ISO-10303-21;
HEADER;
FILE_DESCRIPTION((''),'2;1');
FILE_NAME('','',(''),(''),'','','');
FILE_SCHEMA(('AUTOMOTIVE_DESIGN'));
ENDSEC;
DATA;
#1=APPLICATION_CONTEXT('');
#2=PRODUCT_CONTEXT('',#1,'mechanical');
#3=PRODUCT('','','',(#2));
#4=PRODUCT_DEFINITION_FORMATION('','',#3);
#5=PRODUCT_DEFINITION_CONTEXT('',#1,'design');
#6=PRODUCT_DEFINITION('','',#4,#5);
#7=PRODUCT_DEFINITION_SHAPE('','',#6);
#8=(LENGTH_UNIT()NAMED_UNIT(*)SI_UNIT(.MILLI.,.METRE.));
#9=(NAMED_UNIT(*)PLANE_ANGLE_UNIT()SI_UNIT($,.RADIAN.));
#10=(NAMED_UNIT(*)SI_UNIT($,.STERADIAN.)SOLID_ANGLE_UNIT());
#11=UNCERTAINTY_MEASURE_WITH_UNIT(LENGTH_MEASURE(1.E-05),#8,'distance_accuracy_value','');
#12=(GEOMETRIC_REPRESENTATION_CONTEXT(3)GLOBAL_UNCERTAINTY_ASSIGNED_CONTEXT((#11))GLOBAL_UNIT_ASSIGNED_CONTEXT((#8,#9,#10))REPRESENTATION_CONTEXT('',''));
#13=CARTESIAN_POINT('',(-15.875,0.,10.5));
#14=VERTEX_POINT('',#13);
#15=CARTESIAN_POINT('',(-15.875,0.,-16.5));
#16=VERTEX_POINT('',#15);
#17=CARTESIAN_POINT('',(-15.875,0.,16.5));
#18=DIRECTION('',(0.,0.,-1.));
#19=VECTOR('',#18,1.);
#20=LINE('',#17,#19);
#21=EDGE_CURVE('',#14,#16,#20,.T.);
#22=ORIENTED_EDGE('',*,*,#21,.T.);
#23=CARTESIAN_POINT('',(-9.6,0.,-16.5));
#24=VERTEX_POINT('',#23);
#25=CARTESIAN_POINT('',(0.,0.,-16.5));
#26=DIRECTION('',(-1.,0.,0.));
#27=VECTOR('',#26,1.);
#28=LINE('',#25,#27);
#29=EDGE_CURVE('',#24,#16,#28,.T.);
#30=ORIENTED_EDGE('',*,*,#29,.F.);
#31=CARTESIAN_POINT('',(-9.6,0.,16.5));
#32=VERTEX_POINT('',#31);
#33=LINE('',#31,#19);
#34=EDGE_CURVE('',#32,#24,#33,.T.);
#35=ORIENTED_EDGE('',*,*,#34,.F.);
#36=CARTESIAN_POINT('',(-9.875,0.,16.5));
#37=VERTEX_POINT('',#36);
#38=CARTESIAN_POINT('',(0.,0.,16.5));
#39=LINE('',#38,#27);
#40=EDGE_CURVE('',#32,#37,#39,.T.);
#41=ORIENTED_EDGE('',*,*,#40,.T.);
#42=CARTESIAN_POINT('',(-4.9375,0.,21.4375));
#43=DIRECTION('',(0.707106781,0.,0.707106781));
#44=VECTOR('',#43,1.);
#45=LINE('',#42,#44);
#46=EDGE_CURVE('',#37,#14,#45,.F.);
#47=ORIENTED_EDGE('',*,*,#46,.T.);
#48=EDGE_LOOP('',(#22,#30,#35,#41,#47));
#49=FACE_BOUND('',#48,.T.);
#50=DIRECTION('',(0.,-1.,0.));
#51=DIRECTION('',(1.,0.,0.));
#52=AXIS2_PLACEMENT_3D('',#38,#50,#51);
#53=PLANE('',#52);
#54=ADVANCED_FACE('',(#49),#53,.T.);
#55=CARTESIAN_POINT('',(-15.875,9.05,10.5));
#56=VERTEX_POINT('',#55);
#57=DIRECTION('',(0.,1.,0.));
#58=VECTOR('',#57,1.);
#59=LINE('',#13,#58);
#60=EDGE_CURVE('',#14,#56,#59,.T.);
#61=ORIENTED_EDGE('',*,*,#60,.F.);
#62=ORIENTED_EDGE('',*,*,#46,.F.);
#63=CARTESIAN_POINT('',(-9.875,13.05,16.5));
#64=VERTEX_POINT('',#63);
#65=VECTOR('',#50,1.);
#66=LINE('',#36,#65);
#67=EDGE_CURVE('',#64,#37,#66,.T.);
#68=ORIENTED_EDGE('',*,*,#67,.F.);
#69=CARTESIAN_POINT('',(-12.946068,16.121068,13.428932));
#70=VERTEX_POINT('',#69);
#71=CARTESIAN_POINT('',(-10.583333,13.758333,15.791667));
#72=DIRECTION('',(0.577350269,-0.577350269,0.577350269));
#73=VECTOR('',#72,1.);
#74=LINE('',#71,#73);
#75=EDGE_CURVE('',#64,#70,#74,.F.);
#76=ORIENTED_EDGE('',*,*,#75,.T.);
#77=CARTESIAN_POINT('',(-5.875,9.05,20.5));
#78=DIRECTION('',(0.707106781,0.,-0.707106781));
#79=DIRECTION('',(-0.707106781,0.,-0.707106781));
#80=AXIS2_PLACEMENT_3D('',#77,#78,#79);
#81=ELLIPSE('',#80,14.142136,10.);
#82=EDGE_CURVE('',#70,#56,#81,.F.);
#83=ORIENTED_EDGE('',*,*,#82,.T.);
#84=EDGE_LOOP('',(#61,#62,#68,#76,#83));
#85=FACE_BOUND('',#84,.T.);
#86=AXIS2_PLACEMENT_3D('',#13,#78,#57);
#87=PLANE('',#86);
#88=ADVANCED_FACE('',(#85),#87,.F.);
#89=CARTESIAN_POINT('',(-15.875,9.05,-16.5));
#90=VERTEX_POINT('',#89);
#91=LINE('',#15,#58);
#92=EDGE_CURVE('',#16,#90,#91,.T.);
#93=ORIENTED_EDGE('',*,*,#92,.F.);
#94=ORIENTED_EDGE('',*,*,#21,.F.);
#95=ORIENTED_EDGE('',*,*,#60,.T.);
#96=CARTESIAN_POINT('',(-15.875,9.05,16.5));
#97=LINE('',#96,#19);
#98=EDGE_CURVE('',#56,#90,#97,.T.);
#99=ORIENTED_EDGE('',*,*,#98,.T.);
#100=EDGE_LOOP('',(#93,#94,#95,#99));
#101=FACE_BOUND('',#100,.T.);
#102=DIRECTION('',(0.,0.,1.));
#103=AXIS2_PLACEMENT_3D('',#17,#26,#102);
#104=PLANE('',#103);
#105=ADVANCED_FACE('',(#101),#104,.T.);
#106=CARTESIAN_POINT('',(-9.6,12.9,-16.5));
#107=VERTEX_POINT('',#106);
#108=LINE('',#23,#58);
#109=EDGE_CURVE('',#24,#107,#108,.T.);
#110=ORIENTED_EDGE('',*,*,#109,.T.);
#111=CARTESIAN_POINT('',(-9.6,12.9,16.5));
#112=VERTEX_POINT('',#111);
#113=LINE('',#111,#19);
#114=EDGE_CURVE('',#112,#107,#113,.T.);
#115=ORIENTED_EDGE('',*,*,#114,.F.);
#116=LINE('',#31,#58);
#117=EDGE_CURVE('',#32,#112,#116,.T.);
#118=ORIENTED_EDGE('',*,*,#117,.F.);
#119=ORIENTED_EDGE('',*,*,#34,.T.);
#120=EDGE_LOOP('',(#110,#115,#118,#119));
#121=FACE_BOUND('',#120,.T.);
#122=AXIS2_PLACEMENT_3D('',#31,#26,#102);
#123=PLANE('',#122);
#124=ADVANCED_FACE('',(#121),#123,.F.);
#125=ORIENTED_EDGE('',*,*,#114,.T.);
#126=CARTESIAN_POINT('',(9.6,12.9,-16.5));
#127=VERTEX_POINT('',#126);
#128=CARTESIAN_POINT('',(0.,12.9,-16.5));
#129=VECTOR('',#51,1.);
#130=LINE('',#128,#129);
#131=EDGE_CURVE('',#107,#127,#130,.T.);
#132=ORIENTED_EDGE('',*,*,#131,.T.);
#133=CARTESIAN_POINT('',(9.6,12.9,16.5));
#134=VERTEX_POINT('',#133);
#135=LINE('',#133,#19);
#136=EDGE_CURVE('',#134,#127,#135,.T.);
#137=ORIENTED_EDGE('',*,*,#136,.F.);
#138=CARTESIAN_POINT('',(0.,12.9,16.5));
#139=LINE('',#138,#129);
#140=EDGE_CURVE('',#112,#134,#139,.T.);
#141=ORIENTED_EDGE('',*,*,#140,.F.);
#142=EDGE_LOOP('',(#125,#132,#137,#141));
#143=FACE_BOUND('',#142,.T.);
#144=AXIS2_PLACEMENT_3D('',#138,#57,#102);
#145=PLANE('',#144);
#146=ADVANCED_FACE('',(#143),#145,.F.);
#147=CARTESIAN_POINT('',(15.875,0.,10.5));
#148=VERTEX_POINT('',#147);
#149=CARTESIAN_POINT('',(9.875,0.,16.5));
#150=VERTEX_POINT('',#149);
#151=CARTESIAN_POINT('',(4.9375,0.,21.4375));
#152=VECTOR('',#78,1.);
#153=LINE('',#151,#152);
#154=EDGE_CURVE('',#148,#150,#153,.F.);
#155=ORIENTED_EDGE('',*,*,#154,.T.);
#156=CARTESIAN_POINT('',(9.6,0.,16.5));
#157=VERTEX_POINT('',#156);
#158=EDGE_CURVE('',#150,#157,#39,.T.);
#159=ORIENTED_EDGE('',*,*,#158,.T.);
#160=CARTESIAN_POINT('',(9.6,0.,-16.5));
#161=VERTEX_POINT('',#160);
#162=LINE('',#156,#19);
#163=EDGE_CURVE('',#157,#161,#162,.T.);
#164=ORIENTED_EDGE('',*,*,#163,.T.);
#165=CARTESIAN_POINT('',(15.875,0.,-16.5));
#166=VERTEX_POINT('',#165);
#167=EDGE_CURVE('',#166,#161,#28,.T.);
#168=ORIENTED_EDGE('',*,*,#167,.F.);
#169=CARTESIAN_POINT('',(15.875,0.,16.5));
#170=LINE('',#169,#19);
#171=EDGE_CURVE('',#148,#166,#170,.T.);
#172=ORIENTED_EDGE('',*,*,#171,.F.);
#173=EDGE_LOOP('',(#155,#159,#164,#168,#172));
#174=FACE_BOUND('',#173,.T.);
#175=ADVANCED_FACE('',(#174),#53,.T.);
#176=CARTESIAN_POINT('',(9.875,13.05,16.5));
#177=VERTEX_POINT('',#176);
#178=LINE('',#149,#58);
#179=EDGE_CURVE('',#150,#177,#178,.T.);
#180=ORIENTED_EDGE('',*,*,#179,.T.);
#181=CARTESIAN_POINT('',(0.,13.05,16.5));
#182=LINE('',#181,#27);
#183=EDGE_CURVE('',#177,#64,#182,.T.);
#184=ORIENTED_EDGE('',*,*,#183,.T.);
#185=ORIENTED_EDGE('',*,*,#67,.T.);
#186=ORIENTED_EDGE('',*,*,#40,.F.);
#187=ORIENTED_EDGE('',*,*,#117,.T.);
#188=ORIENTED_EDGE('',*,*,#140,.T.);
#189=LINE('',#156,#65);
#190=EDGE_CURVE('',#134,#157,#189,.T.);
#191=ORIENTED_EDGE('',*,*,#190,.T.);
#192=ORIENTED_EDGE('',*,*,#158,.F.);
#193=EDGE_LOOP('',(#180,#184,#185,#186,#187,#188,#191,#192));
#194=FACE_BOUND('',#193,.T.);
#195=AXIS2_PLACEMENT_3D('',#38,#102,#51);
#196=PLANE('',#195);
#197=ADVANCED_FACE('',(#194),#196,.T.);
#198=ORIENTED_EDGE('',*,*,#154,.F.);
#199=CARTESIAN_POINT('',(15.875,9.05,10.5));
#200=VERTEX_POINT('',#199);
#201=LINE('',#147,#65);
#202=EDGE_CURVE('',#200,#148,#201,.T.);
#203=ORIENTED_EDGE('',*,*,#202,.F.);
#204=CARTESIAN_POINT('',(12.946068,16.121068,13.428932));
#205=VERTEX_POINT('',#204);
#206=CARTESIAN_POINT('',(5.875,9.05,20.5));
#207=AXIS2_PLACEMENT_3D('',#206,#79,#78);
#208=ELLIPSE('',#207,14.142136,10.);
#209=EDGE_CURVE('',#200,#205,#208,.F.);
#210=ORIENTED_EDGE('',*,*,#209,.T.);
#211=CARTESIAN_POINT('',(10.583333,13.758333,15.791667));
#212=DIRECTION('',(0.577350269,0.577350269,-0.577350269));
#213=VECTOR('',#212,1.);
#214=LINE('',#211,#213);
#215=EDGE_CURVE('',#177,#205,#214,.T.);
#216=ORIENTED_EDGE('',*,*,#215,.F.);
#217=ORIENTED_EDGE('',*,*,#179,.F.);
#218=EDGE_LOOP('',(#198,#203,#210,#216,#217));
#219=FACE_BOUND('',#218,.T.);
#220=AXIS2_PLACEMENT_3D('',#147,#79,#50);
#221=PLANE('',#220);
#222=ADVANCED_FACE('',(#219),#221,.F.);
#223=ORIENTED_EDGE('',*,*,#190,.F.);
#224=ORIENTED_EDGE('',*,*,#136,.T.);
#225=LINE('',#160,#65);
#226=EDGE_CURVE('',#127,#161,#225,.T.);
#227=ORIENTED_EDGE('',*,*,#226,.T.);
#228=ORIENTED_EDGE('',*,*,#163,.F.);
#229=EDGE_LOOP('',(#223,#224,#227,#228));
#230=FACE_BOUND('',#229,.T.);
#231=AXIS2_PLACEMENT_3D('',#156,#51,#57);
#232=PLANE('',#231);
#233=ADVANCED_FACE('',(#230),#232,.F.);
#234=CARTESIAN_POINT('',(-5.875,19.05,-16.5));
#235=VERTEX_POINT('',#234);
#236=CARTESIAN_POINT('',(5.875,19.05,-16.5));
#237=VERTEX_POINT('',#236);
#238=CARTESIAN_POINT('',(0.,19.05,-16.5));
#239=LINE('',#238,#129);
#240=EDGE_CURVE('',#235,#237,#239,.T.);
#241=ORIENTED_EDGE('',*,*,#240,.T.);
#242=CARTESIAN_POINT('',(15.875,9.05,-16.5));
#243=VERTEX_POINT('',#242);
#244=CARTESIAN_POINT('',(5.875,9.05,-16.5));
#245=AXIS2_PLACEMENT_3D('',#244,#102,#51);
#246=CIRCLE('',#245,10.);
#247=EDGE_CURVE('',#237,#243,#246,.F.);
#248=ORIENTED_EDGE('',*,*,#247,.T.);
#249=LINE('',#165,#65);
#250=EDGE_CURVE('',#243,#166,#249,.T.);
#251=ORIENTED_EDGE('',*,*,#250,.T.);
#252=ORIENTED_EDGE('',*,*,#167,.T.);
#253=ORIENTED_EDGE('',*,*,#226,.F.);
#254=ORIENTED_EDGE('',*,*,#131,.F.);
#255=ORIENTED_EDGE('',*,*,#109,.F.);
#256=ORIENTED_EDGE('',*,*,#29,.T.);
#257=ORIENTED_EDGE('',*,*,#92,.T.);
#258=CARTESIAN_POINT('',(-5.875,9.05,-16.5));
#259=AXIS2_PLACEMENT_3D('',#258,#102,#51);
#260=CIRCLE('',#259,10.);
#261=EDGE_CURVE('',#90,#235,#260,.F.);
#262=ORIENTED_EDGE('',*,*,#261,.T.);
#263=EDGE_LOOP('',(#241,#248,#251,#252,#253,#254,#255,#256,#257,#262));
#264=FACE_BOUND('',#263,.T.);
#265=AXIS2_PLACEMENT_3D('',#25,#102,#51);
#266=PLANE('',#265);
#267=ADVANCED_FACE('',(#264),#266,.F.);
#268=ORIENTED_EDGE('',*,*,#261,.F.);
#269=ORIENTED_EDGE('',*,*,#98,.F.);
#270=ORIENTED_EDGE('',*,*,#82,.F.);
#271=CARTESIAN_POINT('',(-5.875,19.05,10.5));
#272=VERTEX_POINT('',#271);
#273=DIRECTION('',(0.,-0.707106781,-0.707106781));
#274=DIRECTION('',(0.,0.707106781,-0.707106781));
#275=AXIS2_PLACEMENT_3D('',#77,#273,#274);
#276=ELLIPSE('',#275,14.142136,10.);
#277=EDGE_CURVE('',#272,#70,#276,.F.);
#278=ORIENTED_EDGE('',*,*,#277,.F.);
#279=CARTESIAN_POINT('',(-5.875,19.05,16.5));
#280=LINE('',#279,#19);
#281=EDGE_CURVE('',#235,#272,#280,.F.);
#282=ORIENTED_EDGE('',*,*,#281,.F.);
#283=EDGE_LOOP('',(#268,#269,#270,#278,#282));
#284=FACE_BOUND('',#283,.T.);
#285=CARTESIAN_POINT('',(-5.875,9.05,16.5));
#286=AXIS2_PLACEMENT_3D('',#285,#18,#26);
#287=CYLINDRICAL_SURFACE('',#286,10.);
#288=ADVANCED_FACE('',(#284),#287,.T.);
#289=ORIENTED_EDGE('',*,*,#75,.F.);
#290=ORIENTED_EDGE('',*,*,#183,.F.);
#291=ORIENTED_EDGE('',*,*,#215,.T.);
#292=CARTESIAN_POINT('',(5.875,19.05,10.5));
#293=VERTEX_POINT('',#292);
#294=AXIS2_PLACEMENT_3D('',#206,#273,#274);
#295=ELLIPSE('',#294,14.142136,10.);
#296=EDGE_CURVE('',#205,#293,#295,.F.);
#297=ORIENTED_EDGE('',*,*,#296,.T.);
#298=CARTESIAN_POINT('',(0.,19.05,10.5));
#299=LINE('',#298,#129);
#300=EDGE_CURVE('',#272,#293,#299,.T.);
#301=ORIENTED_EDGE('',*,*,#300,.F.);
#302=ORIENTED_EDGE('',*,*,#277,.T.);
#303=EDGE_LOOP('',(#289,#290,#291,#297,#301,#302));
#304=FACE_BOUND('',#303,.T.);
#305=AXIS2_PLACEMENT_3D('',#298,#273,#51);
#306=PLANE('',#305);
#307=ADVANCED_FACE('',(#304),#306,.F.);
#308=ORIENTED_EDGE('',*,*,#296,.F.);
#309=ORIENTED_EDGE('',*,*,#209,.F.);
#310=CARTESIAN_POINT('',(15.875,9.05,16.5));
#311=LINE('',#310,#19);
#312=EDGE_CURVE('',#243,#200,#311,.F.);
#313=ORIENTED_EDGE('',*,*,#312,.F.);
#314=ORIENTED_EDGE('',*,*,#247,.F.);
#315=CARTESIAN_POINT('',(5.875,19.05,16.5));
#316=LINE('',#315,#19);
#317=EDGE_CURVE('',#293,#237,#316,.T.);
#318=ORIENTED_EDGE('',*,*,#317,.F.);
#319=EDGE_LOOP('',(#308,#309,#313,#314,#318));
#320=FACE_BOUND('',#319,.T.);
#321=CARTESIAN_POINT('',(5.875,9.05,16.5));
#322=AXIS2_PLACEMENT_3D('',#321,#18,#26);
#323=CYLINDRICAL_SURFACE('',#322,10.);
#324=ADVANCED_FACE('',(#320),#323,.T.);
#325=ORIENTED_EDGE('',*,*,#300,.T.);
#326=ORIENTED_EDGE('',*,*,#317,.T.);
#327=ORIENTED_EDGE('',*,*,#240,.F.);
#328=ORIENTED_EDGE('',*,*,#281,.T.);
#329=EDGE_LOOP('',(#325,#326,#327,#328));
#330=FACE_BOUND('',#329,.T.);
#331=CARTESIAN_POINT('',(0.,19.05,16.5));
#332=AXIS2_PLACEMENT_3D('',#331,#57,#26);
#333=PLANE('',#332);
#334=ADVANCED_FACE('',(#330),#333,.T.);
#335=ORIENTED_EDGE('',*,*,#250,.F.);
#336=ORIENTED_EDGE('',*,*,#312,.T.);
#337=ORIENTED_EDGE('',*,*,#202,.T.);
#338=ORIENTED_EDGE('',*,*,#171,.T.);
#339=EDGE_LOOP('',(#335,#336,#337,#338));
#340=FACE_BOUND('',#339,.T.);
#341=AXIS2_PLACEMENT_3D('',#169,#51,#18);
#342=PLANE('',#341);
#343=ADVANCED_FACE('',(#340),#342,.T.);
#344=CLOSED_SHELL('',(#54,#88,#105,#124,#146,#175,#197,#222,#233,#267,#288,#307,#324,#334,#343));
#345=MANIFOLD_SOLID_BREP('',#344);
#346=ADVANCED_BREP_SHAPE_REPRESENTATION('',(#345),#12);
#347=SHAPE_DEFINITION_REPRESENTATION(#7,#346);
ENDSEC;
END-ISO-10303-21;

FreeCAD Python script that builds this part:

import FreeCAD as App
import Part
import Sketcher
from FreeCAD import Vector


def edges_at(feature, points):
    """Names of the edges that pass closest to the given points."""
    edges = feature.Shape.Edges
    near = lambda p: min(range(len(edges)), key=lambda i: edges[i].distToShape(Part.Vertex(*p))[0])
    return sorted({f"Edge{near(p) + 1}" for p in points})


def add_polygon(sketch, points):
    """Adds a closed chain of lines whose ends are joined by coincident constraints."""
    first, n = sketch.GeometryCount, len(points)
    for a, b in zip(points, points[1:] + points[:1]):
        sketch.addGeometry(Part.LineSegment(App.Vector(*a, 0), App.Vector(*b, 0)), False)
    for i in range(n):
        sketch.addConstraint(Sketcher.Constraint("Coincident", first + i, 2, first + (i + 1) % n, 1))

doc = App.newDocument("Part")
params = doc.addObject("Spreadsheet::Sheet", "Params")
for row, (alias, value) in enumerate([
    ("sketch1_width", "19.2 mm"),
    ("sketch1_height", "12.9 mm"),
    ("sketch1_width2", "31.75 mm"),
    ("sketch1_height2", "19.05 mm"),
    ("pad1_length", "33 mm"),
    ("chamfer_size", "6 mm"),
    ("fillet_radius", "10 mm"),
], start=1):
    params.set(f"A{row}", alias)
    params.set(f"B{row}", "=" + value)
    params.setAlias(f"B{row}", alias)

body = doc.addObject("PartDesign::Body", "Body")

# Sketch on XY plane
sketch1 = doc.addObject("Sketcher::SketchObject", "Sketch")
body.addObject(sketch1)
sketch1.AttachmentSupport = (doc.XY_Plane, [""])
sketch1.MapMode = "FlatFace"
add_polygon(sketch1, [(10, 0), (16, 0), (16, 19), (-16, 19), (-16, 0), (-10, 0), (-10, 13), (10, 13)])  # lines 0-7
sketch1.addConstraint(Sketcher.Constraint("Horizontal", 0))
sketch1.addConstraint(Sketcher.Constraint("Vertical", 1))
sketch1.addConstraint(Sketcher.Constraint("Horizontal", 2))
sketch1.addConstraint(Sketcher.Constraint("Vertical", 3))
sketch1.addConstraint(Sketcher.Constraint("Horizontal", 4))
sketch1.addConstraint(Sketcher.Constraint("Vertical", 5))
sketch1.addConstraint(Sketcher.Constraint("Horizontal", 6))
sketch1.addConstraint(Sketcher.Constraint("Vertical", 7))
sketch1.addConstraint(Sketcher.Constraint("Symmetric", 0, 2, 3, 2, -1, 1))
sketch1.addConstraint(Sketcher.Constraint("Symmetric", 4, 2, 7, 2, -2))
sketch1.addConstraint(Sketcher.Constraint("DistanceX", 6, 1, 6, 2, 19.2))
sketch1.addConstraint(Sketcher.Constraint("DistanceY", 5, 1, 5, 2, 12.9))
sketch1.addConstraint(Sketcher.Constraint("DistanceX", 2, 2, 2, 1, 31.75))
sketch1.addConstraint(Sketcher.Constraint("DistanceY", 1, 1, 1, 2, 19.05))
sketch1.setExpression("Constraints[18]", "Params.sketch1_width")
sketch1.setExpression("Constraints[19]", "Params.sketch1_height")
sketch1.setExpression("Constraints[20]", "Params.sketch1_width2")
sketch1.setExpression("Constraints[21]", "Params.sketch1_height2")
pad1 = doc.addObject("PartDesign::Pad", "Pad")
body.addObject(pad1)
pad1.Profile = sketch1
pad1.setExpression("Length", "Params.pad1_length")
pad1.Midplane = True
doc.recompute()

chamfer = doc.addObject("PartDesign::Chamfer", "Chamfer")
body.addObject(chamfer)
chamfer.Base = (pad1, edges_at(pad1, [(15.875, 9.525, 16.5), (0, 19.05, 16.5), (-15.875, 9.525, 16.5)]))
chamfer.setExpression("Size", "Params.chamfer_size")
doc.recompute()

fillet = doc.addObject("PartDesign::Fillet", "Fillet")
body.addObject(fillet)
fillet.Base = (chamfer, edges_at(chamfer, [(-15.875, 19.05, -3), (15.875, 19.05, -3)]))
fillet.setExpression("Radius", "Params.fillet_radius")

doc.recompute()
